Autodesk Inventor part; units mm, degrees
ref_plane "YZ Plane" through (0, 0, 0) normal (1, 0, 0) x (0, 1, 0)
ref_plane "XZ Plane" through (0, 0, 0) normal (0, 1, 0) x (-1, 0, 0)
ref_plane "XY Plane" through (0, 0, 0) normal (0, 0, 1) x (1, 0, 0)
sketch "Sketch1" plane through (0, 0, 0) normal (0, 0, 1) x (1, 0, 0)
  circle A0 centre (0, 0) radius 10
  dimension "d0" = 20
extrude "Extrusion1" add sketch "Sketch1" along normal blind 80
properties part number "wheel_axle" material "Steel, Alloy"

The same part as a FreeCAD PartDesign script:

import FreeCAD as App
import Part
import Sketcher

doc = App.newDocument("Part")
body = doc.addObject("PartDesign::Body", "Body")

# Sketch on XY plane
sketch1 = body.newObject("Sketcher::SketchObject", "Sketch")
sketch1.AttachmentSupport = (doc.getObject("XY_Plane"), [""])
sketch1.MapMode = "FlatFace"
sketch1.addGeometry(Part.Circle(App.Vector(0, 0, 0), App.Vector(0, 0, 1), 10), False)
sketch1.addConstraint([
    Sketcher.Constraint("Coincident", 0, 3, -1, 1),
    Sketcher.Constraint("Diameter", 0, 20.0),
])
pad1 = body.newObject("PartDesign::Pad", "Pad")
pad1.Profile = sketch1
pad1.Length = 80

doc.recompute()
